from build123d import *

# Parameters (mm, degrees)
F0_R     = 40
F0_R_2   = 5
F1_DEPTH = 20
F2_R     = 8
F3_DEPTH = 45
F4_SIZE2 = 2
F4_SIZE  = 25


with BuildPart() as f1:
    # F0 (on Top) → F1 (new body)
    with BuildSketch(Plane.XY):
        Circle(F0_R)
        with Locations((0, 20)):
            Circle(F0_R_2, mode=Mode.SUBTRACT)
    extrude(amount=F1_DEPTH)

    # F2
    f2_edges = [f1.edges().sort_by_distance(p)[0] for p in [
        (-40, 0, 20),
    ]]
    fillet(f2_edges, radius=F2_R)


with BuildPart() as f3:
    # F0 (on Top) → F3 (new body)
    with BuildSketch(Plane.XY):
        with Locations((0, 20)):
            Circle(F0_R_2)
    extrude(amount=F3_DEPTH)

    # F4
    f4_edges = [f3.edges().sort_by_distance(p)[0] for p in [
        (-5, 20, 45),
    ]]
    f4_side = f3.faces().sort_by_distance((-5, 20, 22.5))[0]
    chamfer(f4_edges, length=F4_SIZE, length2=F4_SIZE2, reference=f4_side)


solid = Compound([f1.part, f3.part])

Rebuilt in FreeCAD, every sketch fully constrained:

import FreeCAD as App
import Part
import Sketcher
Q = App.Units.Quantity


def edges_at(feature, points):
    """Names of the edges that pass closest to the given points."""
    edges = feature.Shape.Edges
    near = lambda p: min(range(len(edges)), key=lambda i: edges[i].distToShape(Part.Vertex(*p))[0])
    return sorted({f"Edge{near(p) + 1}" for p in points})

doc = App.newDocument("Part")
body = doc.addObject("PartDesign::Body", "Body")

sketch1 = body.newObject("Sketcher::SketchObject", "Sketch")
sketch1.AttachmentSupport = (doc.getObject("XY_Plane"), [""])
sketch1.MapMode = "FlatFace"
sketch1.addGeometry(Part.Circle(App.Vector(0, 0, 0), App.Vector(0, 0, 1), 40), False)
sketch1.addGeometry(Part.Circle(App.Vector(0, 20, 0), App.Vector(0, 0, 1), 5), False)
sketch1.addConstraint(Sketcher.Constraint("Coincident", 0, 3, -1, 1))
sketch1.addConstraint(Sketcher.Constraint("PointOnObject", 1, 3, -2))
sketch1.addConstraint(Sketcher.Constraint("Diameter", 0, Q("80 mm")))
sketch1.addConstraint(Sketcher.Constraint("Diameter", 1, Q("10 mm")))
sketch1.addConstraint(Sketcher.Constraint("DistanceY", -1, 1, 1, 3, Q("20 mm")))
pad1 = body.newObject("PartDesign::Pad", "Pad")
pad1.Profile = sketch1
pad1.Length = 20
doc.recompute()

fillet = body.newObject("PartDesign::Fillet", "Fillet")
fillet.Base = (pad1, edges_at(pad1, [(-40, 0, 20)]))
fillet.Radius = 8
body2 = doc.addObject("PartDesign::Body", "Body001")

sketch2 = body2.newObject("Sketcher::SketchObject", "Sketch001")
sketch2.AttachmentSupport = (doc.getObject("XY_Plane001"), [""])
sketch2.MapMode = "FlatFace"
sketch2.addGeometry(Part.Circle(App.Vector(0, 20, 0), App.Vector(0, 0, 1), 5), False)
sketch2.addConstraint(Sketcher.Constraint("PointOnObject", 0, 3, -2))
sketch2.addConstraint(Sketcher.Constraint("Diameter", 0, Q("10 mm")))
sketch2.addConstraint(Sketcher.Constraint("DistanceY", -1, 1, 0, 3, Q("20 mm")))
pad2 = body2.newObject("PartDesign::Pad", "Pad001")
pad2.Profile = sketch2
pad2.Length = 45
doc.recompute()

chamfer = body2.newObject("PartDesign::Chamfer", "Chamfer")
chamfer.Base = (pad2, edges_at(pad2, [(-5, 20, 45)]))
chamfer.ChamferType = "Two distances"
chamfer.Size = 25
chamfer.Size2 = 2

doc.recompute()
